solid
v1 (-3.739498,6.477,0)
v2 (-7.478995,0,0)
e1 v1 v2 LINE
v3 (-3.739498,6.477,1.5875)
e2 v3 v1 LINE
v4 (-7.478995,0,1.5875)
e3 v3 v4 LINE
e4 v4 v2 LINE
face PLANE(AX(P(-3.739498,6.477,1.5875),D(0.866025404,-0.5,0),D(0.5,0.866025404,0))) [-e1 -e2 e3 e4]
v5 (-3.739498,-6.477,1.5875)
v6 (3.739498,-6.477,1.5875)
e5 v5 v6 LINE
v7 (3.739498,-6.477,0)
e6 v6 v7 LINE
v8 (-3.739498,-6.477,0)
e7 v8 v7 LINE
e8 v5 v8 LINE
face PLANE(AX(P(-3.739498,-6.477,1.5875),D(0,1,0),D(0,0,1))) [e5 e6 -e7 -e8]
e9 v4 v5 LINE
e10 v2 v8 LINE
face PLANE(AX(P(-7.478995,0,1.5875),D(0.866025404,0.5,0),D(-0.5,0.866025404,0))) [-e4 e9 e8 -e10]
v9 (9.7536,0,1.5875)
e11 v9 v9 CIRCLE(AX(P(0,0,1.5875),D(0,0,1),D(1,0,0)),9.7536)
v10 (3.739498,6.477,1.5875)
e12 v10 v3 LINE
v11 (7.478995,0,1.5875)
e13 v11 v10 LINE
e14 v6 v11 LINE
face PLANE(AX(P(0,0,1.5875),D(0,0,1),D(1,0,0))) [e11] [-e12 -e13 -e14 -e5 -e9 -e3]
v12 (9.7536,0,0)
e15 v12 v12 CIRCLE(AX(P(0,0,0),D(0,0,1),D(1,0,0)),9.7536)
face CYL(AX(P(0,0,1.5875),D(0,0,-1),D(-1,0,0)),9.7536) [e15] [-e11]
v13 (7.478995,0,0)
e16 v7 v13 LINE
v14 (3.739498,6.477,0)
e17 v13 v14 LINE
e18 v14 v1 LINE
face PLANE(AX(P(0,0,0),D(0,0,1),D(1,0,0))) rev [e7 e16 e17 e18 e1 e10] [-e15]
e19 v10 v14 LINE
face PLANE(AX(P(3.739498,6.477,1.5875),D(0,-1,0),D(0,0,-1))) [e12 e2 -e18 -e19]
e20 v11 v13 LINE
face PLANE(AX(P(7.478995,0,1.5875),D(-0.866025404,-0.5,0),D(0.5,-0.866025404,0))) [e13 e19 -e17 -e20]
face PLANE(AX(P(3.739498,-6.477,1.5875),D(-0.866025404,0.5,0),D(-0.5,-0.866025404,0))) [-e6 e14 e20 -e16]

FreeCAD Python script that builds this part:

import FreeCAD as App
import Part
import Sketcher

V = App.Vector
Q = App.Units.Quantity

doc = App.newDocument("Part")
body = doc.addObject("PartDesign::Body", "Body")

# Sketch on XY plane
sketch1 = body.newObject("Sketcher::SketchObject", "Sketch")
sketch1.AttachmentSupport = (doc.getObject("XY_Plane"), [""])
sketch1.MapMode = "FlatFace"
sketch1.addGeometry([
    Part.Circle(V(0, 0, 0), V(0, 0, 1), 10),  # 0
    Part.LineSegment(V(4, 6, 0), V(7, 0, 0)),  # 1
    Part.LineSegment(V(7, 0, 0), V(4, -6, 0)),  # 2
    Part.LineSegment(V(4, -6, 0), V(-4, -6, 0)),  # 3
    Part.LineSegment(V(-4, -6, 0), V(-7, 0, 0)),  # 4
    Part.LineSegment(V(-7, 0, 0), V(-4, 6, 0)),  # 5
    Part.LineSegment(V(-4, 6, 0), V(4, 6, 0)),  # 6
], False)
sketch1.addConstraint([
    Sketcher.Constraint("Coincident", 1, 2, 2, 1),
    Sketcher.Constraint("Coincident", 2, 2, 3, 1),
    Sketcher.Constraint("Coincident", 3, 2, 4, 1),
    Sketcher.Constraint("Coincident", 4, 2, 5, 1),
    Sketcher.Constraint("Coincident", 5, 2, 6, 1),
    Sketcher.Constraint("Coincident", 6, 2, 1, 1),
    Sketcher.Constraint("Horizontal", 3),
    Sketcher.Constraint("Horizontal", 6),
    Sketcher.Constraint("Coincident", 0, 3, -1, 1),
    Sketcher.Constraint("Symmetric", 1, 2, 4, 2, -1, 1),
    Sketcher.Constraint("Symmetric", 2, 2, 5, 2, -1, 1),
    Sketcher.Constraint("PointOnObject", 1, 2, -1),
    Sketcher.Constraint("Parallel", 1, 4),
    Sketcher.Constraint("Vertical", 3, 2, 5, 2),
    Sketcher.Constraint("Diameter", 0, Q("0.768 in")),
    Sketcher.Constraint("Angle", 1, Q("-60 deg")),
    Sketcher.Constraint("DistanceY", 3, 2, 5, 2, Q("0.51 in")),
    Sketcher.Constraint("DistanceX", 3, 2, 3, 1, 7.478995),
])
pad1 = body.newObject("PartDesign::Pad", "Pad")
pad1.Profile = sketch1
pad1.Length = Q("0.0625 in")

doc.recompute()
